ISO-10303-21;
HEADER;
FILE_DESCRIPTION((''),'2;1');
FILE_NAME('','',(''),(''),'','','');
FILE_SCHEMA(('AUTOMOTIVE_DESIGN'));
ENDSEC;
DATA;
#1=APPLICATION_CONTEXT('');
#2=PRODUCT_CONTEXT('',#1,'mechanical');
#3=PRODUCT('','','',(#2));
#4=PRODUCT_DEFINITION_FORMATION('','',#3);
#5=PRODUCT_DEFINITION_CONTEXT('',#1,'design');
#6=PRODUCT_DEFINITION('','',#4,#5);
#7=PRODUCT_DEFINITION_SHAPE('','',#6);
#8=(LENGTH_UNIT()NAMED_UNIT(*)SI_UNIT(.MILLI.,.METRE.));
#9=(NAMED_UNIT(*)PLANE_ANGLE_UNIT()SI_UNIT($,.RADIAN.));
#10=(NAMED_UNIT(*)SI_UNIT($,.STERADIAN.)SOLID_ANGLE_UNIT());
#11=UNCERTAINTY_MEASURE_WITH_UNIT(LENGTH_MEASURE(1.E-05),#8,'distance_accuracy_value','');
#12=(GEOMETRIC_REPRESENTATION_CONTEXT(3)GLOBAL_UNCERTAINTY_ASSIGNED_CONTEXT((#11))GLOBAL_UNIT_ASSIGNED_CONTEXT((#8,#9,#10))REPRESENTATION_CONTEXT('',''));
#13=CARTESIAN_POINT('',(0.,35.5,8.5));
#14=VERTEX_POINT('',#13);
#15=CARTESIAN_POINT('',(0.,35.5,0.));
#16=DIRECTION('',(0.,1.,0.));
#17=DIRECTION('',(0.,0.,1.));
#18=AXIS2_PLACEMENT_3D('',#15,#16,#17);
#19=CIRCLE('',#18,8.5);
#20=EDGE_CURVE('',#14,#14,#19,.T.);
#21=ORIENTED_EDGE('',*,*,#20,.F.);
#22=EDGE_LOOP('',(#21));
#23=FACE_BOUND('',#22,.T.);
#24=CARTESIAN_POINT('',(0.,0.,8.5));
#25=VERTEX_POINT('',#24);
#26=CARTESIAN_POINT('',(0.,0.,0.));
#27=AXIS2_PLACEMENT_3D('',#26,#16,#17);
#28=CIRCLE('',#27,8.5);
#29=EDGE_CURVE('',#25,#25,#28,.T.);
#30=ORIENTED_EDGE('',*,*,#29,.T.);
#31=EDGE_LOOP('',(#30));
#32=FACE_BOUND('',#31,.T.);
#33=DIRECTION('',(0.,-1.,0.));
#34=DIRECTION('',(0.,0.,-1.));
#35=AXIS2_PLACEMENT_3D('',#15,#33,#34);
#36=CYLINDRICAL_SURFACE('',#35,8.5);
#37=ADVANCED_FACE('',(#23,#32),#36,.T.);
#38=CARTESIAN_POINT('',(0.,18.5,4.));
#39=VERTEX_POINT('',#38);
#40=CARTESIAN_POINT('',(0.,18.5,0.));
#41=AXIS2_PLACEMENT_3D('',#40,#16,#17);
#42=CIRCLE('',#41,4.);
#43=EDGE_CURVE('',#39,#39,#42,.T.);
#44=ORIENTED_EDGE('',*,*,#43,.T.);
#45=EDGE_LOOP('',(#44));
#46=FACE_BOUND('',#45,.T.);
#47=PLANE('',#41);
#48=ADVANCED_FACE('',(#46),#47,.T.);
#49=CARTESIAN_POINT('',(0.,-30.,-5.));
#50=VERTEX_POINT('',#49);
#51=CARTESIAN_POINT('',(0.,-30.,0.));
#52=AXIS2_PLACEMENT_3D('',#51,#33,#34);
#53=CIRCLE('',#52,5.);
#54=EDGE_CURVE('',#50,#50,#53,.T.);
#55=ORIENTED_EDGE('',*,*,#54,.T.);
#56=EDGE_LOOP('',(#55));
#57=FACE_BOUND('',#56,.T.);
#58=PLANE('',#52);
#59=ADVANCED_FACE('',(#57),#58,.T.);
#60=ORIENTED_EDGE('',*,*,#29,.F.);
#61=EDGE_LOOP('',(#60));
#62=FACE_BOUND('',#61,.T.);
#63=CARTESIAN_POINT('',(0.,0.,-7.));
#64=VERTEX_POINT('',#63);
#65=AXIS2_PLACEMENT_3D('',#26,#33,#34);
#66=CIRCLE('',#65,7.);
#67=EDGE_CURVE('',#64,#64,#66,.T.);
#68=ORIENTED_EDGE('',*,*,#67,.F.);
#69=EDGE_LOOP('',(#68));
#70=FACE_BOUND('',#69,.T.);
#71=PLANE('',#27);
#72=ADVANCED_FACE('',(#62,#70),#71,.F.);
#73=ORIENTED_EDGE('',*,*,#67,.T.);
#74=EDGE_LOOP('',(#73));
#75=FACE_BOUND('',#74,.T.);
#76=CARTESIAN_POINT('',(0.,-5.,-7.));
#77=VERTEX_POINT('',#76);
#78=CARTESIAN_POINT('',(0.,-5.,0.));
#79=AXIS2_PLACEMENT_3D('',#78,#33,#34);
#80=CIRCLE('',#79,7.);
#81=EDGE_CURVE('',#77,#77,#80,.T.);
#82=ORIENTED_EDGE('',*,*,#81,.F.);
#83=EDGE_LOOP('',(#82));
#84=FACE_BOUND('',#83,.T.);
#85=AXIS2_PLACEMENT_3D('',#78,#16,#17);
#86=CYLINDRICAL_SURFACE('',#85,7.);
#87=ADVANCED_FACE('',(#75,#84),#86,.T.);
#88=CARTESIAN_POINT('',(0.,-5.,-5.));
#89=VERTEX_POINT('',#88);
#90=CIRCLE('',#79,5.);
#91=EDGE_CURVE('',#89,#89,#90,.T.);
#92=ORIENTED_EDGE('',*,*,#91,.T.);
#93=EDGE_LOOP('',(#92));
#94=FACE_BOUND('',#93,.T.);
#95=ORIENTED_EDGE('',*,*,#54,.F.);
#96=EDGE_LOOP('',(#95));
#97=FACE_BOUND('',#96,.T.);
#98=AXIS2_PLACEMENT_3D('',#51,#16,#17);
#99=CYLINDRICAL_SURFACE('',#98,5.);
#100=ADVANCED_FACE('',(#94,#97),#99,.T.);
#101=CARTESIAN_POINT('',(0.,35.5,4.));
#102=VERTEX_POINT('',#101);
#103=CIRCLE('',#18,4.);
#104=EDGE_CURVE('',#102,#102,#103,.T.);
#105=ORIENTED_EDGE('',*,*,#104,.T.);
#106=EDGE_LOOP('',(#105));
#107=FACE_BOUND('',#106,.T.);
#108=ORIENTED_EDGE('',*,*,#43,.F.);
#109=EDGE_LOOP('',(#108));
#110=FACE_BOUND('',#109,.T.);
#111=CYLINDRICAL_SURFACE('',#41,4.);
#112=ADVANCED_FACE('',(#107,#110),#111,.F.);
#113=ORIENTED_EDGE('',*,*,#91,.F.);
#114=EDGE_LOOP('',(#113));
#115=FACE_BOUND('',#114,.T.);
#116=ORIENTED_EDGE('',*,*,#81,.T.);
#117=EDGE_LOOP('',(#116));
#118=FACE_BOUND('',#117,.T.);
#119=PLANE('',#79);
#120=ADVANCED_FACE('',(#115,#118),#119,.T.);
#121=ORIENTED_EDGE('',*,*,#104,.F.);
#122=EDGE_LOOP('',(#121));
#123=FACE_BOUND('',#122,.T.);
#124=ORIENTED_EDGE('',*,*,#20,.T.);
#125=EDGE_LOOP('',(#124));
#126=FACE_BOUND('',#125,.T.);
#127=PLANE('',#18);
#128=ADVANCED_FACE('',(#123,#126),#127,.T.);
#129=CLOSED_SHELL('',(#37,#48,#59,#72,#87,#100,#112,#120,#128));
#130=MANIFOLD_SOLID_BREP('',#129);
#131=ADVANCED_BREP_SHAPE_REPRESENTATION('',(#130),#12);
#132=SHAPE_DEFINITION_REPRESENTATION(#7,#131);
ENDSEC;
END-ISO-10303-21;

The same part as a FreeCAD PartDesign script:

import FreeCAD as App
import Part
import Sketcher
Q = App.Units.Quantity

doc = App.newDocument("Part")
body = doc.addObject("PartDesign::Body", "Body")

sketch1 = doc.addObject("Sketcher::SketchObject", "Sketch")
body.addObject(sketch1)
sketch1.AttachmentSupport = (doc.XZ_Plane, [""])
sketch1.MapMode = "FlatFace"
sketch1.addGeometry(Part.Circle(App.Vector(0, 0, 0), App.Vector(0, 0, 1), 8), False)
sketch1.addConstraint([
    Sketcher.Constraint("Coincident", 0, 3, -1, 1),
    Sketcher.Constraint("Diameter", 0, Q("17 mm")),
])
pad1 = doc.addObject("PartDesign::Pad", "Pad")
body.addObject(pad1)
pad1.Profile = sketch1
pad1.Length = 35.5
pad1.Reversed = True

sketch2 = doc.addObject("Sketcher::SketchObject", "Sketch001")
body.addObject(sketch2)
sketch2.AttachmentSupport = (doc.XZ_Plane, [""])
sketch2.MapMode = "FlatFace"
sketch2.addGeometry(Part.Circle(App.Vector(0, 0, 0), App.Vector(0, 0, 1), 7), False)
sketch2.addConstraint([
    Sketcher.Constraint("Coincident", 0, 3, -1, 1),
    Sketcher.Constraint("Diameter", 0, Q("14 mm")),
])
pad2 = doc.addObject("PartDesign::Pad", "Pad001")
body.addObject(pad2)
pad2.Profile = sketch2
pad2.Length = 5

sketch3 = doc.addObject("Sketcher::SketchObject", "Sketch002")
body.addObject(sketch3)
sketch3.AttachmentSupport = (doc.XZ_Plane, [""])
sketch3.MapMode = "FlatFace"
sketch3.AttachmentOffset = App.Placement(App.Vector(0, 0, 5), App.Rotation())
sketch3.addGeometry(Part.Circle(App.Vector(0, 0, 0), App.Vector(0, 0, 1), 5), False)
sketch3.addConstraint([
    Sketcher.Constraint("Coincident", 0, 3, -1, 1),
    Sketcher.Constraint("Diameter", 0, Q("10 mm")),
])
pad3 = doc.addObject("PartDesign::Pad", "Pad002")
body.addObject(pad3)
pad3.Profile = sketch3
pad3.Length = 25

sketch4 = doc.addObject("Sketcher::SketchObject", "Sketch003")
body.addObject(sketch4)
sketch4.AttachmentSupport = (doc.XZ_Plane, [""])
sketch4.MapMode = "FlatFace"
sketch4.AttachmentOffset = App.Placement(App.Vector(0, 0, -35.5), App.Rotation())
sketch4.addGeometry(Part.Circle(App.Vector(0, 0, 0), App.Vector(0, 0, 1), 4), False)
sketch4.addConstraint([
    Sketcher.Constraint("Coincident", 0, 3, -1, 1),
    Sketcher.Constraint("Diameter", 0, Q("8 mm")),
])
pocket1 = doc.addObject("PartDesign::Pocket", "Pocket")
body.addObject(pocket1)
pocket1.Profile = sketch4
pocket1.Length = 17
pocket1.Reversed = True

doc.recompute()
